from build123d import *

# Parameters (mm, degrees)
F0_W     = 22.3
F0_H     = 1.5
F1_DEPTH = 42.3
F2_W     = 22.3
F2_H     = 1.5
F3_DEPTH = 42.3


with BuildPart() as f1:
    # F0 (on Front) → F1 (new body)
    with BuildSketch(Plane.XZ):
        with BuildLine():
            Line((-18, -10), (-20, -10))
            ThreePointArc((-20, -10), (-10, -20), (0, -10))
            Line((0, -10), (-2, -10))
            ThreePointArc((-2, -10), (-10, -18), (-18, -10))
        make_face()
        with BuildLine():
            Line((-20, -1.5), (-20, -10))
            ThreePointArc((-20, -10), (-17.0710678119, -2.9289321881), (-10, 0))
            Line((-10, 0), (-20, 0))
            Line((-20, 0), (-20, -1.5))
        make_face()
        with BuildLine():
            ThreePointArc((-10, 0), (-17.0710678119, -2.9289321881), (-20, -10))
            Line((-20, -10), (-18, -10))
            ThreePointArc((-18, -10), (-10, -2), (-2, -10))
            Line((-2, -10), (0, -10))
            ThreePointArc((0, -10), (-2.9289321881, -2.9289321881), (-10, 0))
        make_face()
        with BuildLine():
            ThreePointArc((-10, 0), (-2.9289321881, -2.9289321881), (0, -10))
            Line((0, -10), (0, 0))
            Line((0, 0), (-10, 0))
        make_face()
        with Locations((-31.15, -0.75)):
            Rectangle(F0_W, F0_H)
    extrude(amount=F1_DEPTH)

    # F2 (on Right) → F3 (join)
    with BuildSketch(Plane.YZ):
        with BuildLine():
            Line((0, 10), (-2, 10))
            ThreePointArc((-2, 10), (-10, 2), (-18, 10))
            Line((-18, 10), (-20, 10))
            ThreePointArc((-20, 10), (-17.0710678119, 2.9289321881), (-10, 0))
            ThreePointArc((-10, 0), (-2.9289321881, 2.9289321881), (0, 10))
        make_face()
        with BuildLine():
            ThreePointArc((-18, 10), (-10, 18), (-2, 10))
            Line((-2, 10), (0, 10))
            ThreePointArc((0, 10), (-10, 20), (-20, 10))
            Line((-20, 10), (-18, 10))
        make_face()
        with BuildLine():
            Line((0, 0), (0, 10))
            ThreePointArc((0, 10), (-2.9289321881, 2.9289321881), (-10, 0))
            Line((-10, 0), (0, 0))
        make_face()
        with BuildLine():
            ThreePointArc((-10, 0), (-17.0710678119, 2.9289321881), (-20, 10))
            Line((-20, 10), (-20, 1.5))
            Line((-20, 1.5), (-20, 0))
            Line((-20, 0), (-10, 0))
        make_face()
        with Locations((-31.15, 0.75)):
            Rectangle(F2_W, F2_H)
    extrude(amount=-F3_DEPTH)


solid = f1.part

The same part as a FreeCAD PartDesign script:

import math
import FreeCAD as App
import Part
import Sketcher
Q = App.Units.Quantity

doc = App.newDocument("Part")
body = doc.addObject("PartDesign::Body", "Body")

# Sketch on XZ plane
sketch1 = body.newObject("Sketcher::SketchObject", "Sketch")
sketch1.AttachmentSupport = (doc.getObject("XZ_Plane"), [""])
sketch1.MapMode = "FlatFace"
sketch1.addGeometry([
    Part.ArcOfCircle(Part.Circle(App.Vector(-10, -10, 0), App.Vector(0, 0, 1), 10), math.radians(180), math.radians(360)),  # 0
    Part.LineSegment(App.Vector(0, -10, 0), App.Vector(0, 0, 0)),  # 1
    Part.LineSegment(App.Vector(0, 0, 0), App.Vector(-42.3, 0, 0)),  # 2
    Part.LineSegment(App.Vector(-42.3, 0, 0), App.Vector(-42.3, -1.5, 0)),  # 3
    Part.LineSegment(App.Vector(-42.3, -1.5, 0), App.Vector(-20, -1.5, 0)),  # 4
    Part.LineSegment(App.Vector(-20, -1.5, 0), App.Vector(-20, -10, 0)),  # 5
    Part.Circle(App.Vector(-10, -10, 0), App.Vector(0, 0, 1), 8),  # 6
], False)
sketch1.addConstraint([
    Sketcher.Constraint("Tangent", 0, 2, 1, 1),
    Sketcher.Constraint("Coincident", 1, 2, 2, 1),
    Sketcher.Constraint("Coincident", 2, 2, 3, 1),
    Sketcher.Constraint("Coincident", 3, 2, 4, 1),
    Sketcher.Constraint("Coincident", 4, 2, 5, 1),
    Sketcher.Constraint("Tangent", 5, 2, 0, 1),
    Sketcher.Constraint("Vertical", 1),
    Sketcher.Constraint("Horizontal", 2),
    Sketcher.Constraint("Vertical", 3),
    Sketcher.Constraint("Horizontal", 4),
    Sketcher.Constraint("Vertical", 5),
    Sketcher.Constraint("Coincident", 1, 2, -1, 1),
    Sketcher.Constraint("Coincident", 6, 3, 0, 3),
    Sketcher.Constraint("Diameter", 6, Q("16 mm")),
    Sketcher.Constraint("Radius", 0, Q("10 mm")),
    Sketcher.Constraint("DistanceY", 1, 1, 1, 2, Q("10 mm")),
    Sketcher.Constraint("DistanceX", 2, 2, 2, 1, Q("42.3 mm")),
    Sketcher.Constraint("DistanceY", 3, 2, 3, 1, Q("1.5 mm")),
])
pad1 = body.newObject("PartDesign::Pad", "Pad")
pad1.Profile = sketch1
pad1.Length = 42.3

# Sketch on YZ plane
sketch2 = body.newObject("Sketcher::SketchObject", "Sketch001")
sketch2.AttachmentSupport = (doc.getObject("YZ_Plane"), [""])
sketch2.MapMode = "FlatFace"
sketch2.addGeometry([
    Part.LineSegment(App.Vector(0, 0, 0), App.Vector(0, 10, 0)),  # 0
    Part.ArcOfCircle(Part.Circle(App.Vector(-10, 10, 0), App.Vector(0, 0, 1), 10), math.radians(0), math.radians(180)),  # 1
    Part.LineSegment(App.Vector(-20, 10, 0), App.Vector(-20, 1.5, 0)),  # 2
    Part.LineSegment(App.Vector(-20, 1.5, 0), App.Vector(-42.3, 1.5, 0)),  # 3
    Part.LineSegment(App.Vector(-42.3, 1.5, 0), App.Vector(-42.3, 0, 0)),  # 4
    Part.LineSegment(App.Vector(-42.3, 0, 0), App.Vector(0, 0, 0)),  # 5
    Part.Circle(App.Vector(-10, 10, 0), App.Vector(0, 0, 1), 8),  # 6
], False)
sketch2.addConstraint([
    Sketcher.Constraint("Tangent", 0, 2, 1, 1),
    Sketcher.Constraint("Tangent", 1, 2, 2, 1),
    Sketcher.Constraint("Coincident", 2, 2, 3, 1),
    Sketcher.Constraint("Coincident", 3, 2, 4, 1),
    Sketcher.Constraint("Coincident", 4, 2, 5, 1),
    Sketcher.Constraint("Coincident", 5, 2, 0, 1),
    Sketcher.Constraint("Vertical", 0),
    Sketcher.Constraint("Vertical", 2),
    Sketcher.Constraint("Horizontal", 3),
    Sketcher.Constraint("Vertical", 4),
    Sketcher.Constraint("Horizontal", 5),
    Sketcher.Constraint("Coincident", 5, 2, -1, 1),
    Sketcher.Constraint("Coincident", 6, 3, 1, 3),
    Sketcher.Constraint("Diameter", 6, Q("16 mm")),
    Sketcher.Constraint("Radius", 1, Q("10 mm")),
    Sketcher.Constraint("DistanceY", 0, 1, 0, 2, Q("10 mm")),
    Sketcher.Constraint("DistanceX", 3, 2, 3, 1, Q("22.3 mm")),
    Sketcher.Constraint("DistanceY", 2, 2, 2, 1, Q("8.5 mm")),
])
pad2 = body.newObject("PartDesign::Pad", "Pad001")
pad2.Profile = sketch2
pad2.Length = 42.3
pad2.Reversed = True

doc.recompute()
